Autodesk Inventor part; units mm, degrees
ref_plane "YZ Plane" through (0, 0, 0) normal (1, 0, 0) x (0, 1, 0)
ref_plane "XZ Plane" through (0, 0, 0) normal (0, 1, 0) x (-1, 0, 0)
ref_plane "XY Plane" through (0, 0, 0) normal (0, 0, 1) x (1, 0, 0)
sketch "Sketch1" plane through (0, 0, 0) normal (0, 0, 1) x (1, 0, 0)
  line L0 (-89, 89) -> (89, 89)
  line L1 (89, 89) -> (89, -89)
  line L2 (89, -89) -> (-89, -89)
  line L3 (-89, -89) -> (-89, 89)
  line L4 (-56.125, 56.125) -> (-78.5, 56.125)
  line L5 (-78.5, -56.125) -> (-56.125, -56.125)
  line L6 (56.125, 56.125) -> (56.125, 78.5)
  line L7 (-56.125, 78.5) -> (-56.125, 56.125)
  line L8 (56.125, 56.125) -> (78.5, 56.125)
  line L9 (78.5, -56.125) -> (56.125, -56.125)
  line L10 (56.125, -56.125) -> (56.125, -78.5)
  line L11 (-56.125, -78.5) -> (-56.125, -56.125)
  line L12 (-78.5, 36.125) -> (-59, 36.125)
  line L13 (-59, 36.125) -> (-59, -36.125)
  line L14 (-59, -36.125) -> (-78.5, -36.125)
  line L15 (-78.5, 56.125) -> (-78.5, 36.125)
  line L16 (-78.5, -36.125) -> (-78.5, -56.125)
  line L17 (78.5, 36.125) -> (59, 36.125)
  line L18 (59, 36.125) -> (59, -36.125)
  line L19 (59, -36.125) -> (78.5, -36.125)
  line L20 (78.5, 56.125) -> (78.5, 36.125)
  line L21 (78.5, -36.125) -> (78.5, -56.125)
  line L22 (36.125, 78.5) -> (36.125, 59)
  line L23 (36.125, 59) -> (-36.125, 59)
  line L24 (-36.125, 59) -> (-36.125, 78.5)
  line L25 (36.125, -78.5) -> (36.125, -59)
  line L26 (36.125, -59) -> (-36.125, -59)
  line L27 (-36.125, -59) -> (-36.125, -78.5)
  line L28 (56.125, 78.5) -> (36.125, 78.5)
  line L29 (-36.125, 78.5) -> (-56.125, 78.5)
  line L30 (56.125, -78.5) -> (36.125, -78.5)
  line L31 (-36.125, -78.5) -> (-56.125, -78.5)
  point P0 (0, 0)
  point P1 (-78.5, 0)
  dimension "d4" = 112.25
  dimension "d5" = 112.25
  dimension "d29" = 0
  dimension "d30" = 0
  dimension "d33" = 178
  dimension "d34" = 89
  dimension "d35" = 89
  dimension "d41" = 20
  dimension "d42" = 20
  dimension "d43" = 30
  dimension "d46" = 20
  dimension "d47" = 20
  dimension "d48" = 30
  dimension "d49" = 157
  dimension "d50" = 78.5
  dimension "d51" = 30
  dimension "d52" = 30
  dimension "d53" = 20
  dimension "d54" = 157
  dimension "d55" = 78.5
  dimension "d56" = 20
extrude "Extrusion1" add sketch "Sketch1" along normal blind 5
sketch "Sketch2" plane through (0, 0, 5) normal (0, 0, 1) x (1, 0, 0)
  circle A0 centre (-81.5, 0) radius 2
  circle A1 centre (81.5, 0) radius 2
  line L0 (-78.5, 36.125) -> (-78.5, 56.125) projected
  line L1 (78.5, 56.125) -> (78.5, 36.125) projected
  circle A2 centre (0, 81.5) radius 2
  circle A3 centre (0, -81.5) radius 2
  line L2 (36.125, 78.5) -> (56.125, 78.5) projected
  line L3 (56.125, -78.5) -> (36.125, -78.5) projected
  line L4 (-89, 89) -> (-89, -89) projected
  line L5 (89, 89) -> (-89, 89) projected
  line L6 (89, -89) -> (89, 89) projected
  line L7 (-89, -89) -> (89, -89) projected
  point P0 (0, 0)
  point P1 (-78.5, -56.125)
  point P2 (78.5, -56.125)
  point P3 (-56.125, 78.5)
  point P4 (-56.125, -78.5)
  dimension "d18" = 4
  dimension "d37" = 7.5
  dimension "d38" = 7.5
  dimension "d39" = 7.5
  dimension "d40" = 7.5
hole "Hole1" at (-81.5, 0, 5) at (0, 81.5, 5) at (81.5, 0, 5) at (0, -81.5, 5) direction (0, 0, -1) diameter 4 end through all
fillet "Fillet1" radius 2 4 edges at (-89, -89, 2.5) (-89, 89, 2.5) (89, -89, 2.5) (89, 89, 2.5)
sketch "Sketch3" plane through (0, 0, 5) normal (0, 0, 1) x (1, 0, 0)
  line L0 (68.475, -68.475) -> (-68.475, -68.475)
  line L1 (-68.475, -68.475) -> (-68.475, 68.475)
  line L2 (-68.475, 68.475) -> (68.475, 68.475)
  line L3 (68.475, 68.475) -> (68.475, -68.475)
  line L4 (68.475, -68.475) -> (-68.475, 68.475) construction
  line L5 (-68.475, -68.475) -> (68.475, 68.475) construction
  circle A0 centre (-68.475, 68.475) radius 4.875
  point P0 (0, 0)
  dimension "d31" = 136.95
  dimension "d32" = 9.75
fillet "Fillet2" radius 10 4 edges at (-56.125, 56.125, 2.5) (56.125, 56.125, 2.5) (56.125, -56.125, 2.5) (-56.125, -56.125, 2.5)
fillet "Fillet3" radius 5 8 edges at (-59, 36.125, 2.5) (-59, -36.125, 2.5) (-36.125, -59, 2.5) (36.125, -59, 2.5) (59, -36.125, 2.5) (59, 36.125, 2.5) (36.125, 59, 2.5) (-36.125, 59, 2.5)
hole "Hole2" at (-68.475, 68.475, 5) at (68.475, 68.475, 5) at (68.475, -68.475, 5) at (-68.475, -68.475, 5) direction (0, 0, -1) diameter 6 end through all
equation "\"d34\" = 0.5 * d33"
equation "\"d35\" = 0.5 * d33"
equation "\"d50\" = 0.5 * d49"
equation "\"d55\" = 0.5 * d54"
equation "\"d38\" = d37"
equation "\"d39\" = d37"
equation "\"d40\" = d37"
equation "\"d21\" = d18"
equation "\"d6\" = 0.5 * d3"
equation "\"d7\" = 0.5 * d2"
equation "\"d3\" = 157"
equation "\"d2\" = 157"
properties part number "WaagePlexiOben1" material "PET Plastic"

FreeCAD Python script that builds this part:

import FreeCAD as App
import Part
import Sketcher
from FreeCAD import Vector
Q = App.Units.Quantity


def edges_at(feature, points):
    """Names of the edges that pass closest to the given points."""
    edges = feature.Shape.Edges
    near = lambda p: min(range(len(edges)), key=lambda i: edges[i].distToShape(Part.Vertex(*p))[0])
    return sorted({f"Edge{near(p) + 1}" for p in points})

doc = App.newDocument("Part")
body = doc.addObject("PartDesign::Body", "Body")

# Sketch on XY plane
sketch1 = doc.addObject("Sketcher::SketchObject", "Sketch")
body.addObject(sketch1)
sketch1.AttachmentSupport = (doc.XY_Plane, [""])
sketch1.MapMode = "FlatFace"
sketch1.addGeometry(Part.LineSegment(Vector(89, 89, 0), Vector(-89, 89, 0)), False)
sketch1.addGeometry(Part.LineSegment(Vector(-89, 89, 0), Vector(-89, -89, 0)), False)
sketch1.addGeometry(Part.LineSegment(Vector(-89, -89, 0), Vector(89, -89, 0)), False)
sketch1.addGeometry(Part.LineSegment(Vector(89, -89, 0), Vector(89, 89, 0)), False)
sketch1.addGeometry(Part.LineSegment(Vector(-78, 56, 0), Vector(-56, 56, 0)), False)
sketch1.addGeometry(Part.LineSegment(Vector(-56, 56, 0), Vector(-56, 78, 0)), False)
sketch1.addGeometry(Part.LineSegment(Vector(-56, 78, 0), Vector(-36, 78, 0)), False)
sketch1.addGeometry(Part.LineSegment(Vector(-36, 78, 0), Vector(-36, 59, 0)), False)
sketch1.addGeometry(Part.LineSegment(Vector(-36, 59, 0), Vector(36, 59, 0)), False)
sketch1.addGeometry(Part.LineSegment(Vector(36, 59, 0), Vector(36, 78, 0)), False)
sketch1.addGeometry(Part.LineSegment(Vector(36, 78, 0), Vector(56, 78, 0)), False)
sketch1.addGeometry(Part.LineSegment(Vector(56, 78, 0), Vector(56, 56, 0)), False)
sketch1.addGeometry(Part.LineSegment(Vector(56, 56, 0), Vector(78, 56, 0)), False)
sketch1.addGeometry(Part.LineSegment(Vector(78, 56, 0), Vector(78, 36, 0)), False)
sketch1.addGeometry(Part.LineSegment(Vector(78, 36, 0), Vector(59, 36, 0)), False)
sketch1.addGeometry(Part.LineSegment(Vector(59, 36, 0), Vector(59, -36, 0)), False)
sketch1.addGeometry(Part.LineSegment(Vector(59, -36, 0), Vector(78, -36, 0)), False)
sketch1.addGeometry(Part.LineSegment(Vector(78, -36, 0), Vector(78, -56, 0)), False)
sketch1.addGeometry(Part.LineSegment(Vector(78, -56, 0), Vector(56, -56, 0)), False)
sketch1.addGeometry(Part.LineSegment(Vector(56, -56, 0), Vector(56, -78, 0)), False)
sketch1.addGeometry(Part.LineSegment(Vector(56, -78, 0), Vector(36, -78, 0)), False)
sketch1.addGeometry(Part.LineSegment(Vector(36, -78, 0), Vector(36, -59, 0)), False)
sketch1.addGeometry(Part.LineSegment(Vector(36, -59, 0), Vector(-36, -59, 0)), False)
sketch1.addGeometry(Part.LineSegment(Vector(-36, -59, 0), Vector(-36, -78, 0)), False)
sketch1.addGeometry(Part.LineSegment(Vector(-36, -78, 0), Vector(-56, -78, 0)), False)
sketch1.addGeometry(Part.LineSegment(Vector(-56, -78, 0), Vector(-56, -56, 0)), False)
sketch1.addGeometry(Part.LineSegment(Vector(-56, -56, 0), Vector(-78, -56, 0)), False)
sketch1.addGeometry(Part.LineSegment(Vector(-78, -56, 0), Vector(-78, -36, 0)), False)
sketch1.addGeometry(Part.LineSegment(Vector(-78, -36, 0), Vector(-59, -36, 0)), False)
sketch1.addGeometry(Part.LineSegment(Vector(-59, -36, 0), Vector(-59, 36, 0)), False)
sketch1.addGeometry(Part.LineSegment(Vector(-59, 36, 0), Vector(-78, 36, 0)), False)
sketch1.addGeometry(Part.LineSegment(Vector(-78, 36, 0), Vector(-78, 56, 0)), False)
sketch1.addConstraint(Sketcher.Constraint("Coincident", 0, 2, 1, 1))
sketch1.addConstraint(Sketcher.Constraint("Coincident", 1, 2, 2, 1))
sketch1.addConstraint(Sketcher.Constraint("Coincident", 2, 2, 3, 1))
sketch1.addConstraint(Sketcher.Constraint("Coincident", 3, 2, 0, 1))
sketch1.addConstraint(Sketcher.Constraint("Coincident", 4, 2, 5, 1))
sketch1.addConstraint(Sketcher.Constraint("Coincident", 5, 2, 6, 1))
sketch1.addConstraint(Sketcher.Constraint("Coincident", 6, 2, 7, 1))
sketch1.addConstraint(Sketcher.Constraint("Coincident", 7, 2, 8, 1))
sketch1.addConstraint(Sketcher.Constraint("Coincident", 8, 2, 9, 1))
sketch1.addConstraint(Sketcher.Constraint("Coincident", 9, 2, 10, 1))
sketch1.addConstraint(Sketcher.Constraint("Coincident", 10, 2, 11, 1))
sketch1.addConstraint(Sketcher.Constraint("Coincident", 11, 2, 12, 1))
sketch1.addConstraint(Sketcher.Constraint("Coincident", 12, 2, 13, 1))
sketch1.addConstraint(Sketcher.Constraint("Coincident", 13, 2, 14, 1))
sketch1.addConstraint(Sketcher.Constraint("Coincident", 14, 2, 15, 1))
sketch1.addConstraint(Sketcher.Constraint("Coincident", 15, 2, 16, 1))
sketch1.addConstraint(Sketcher.Constraint("Coincident", 16, 2, 17, 1))
sketch1.addConstraint(Sketcher.Constraint("Coincident", 17, 2, 18, 1))
sketch1.addConstraint(Sketcher.Constraint("Coincident", 18, 2, 19, 1))
sketch1.addConstraint(Sketcher.Constraint("Coincident", 19, 2, 20, 1))
sketch1.addConstraint(Sketcher.Constraint("Coincident", 20, 2, 21, 1))
sketch1.addConstraint(Sketcher.Constraint("Coincident", 21, 2, 22, 1))
sketch1.addConstraint(Sketcher.Constraint("Coincident", 22, 2, 23, 1))
sketch1.addConstraint(Sketcher.Constraint("Coincident", 23, 2, 24, 1))
sketch1.addConstraint(Sketcher.Constraint("Coincident", 24, 2, 25, 1))
sketch1.addConstraint(Sketcher.Constraint("Coincident", 25, 2, 26, 1))
sketch1.addConstraint(Sketcher.Constraint("Coincident", 26, 2, 27, 1))
sketch1.addConstraint(Sketcher.Constraint("Coincident", 27, 2, 28, 1))
sketch1.addConstraint(Sketcher.Constraint("Coincident", 28, 2, 29, 1))
sketch1.addConstraint(Sketcher.Constraint("Coincident", 29, 2, 30, 1))
sketch1.addConstraint(Sketcher.Constraint("Coincident", 30, 2, 31, 1))
sketch1.addConstraint(Sketcher.Constraint("Coincident", 31, 2, 4, 1))
sketch1.addConstraint(Sketcher.Constraint("Horizontal", 0))
sketch1.addConstraint(Sketcher.Constraint("Vertical", 1))
sketch1.addConstraint(Sketcher.Constraint("Horizontal", 2))
sketch1.addConstraint(Sketcher.Constraint("Vertical", 3))
sketch1.addConstraint(Sketcher.Constraint("Horizontal", 4))
sketch1.addConstraint(Sketcher.Constraint("Vertical", 5))
sketch1.addConstraint(Sketcher.Constraint("Horizontal", 6))
sketch1.addConstraint(Sketcher.Constraint("Vertical", 7))
sketch1.addConstraint(Sketcher.Constraint("Horizontal", 8))
sketch1.addConstraint(Sketcher.Constraint("Vertical", 9))
sketch1.addConstraint(Sketcher.Constraint("Horizontal", 10))
sketch1.addConstraint(Sketcher.Constraint("Vertical", 11))
sketch1.addConstraint(Sketcher.Constraint("Horizontal", 12))
sketch1.addConstraint(Sketcher.Constraint("Vertical", 13))
sketch1.addConstraint(Sketcher.Constraint("Horizontal", 14))
sketch1.addConstraint(Sketcher.Constraint("Vertical", 15))
sketch1.addConstraint(Sketcher.Constraint("Horizontal", 16))
sketch1.addConstraint(Sketcher.Constraint("Vertical", 17))
sketch1.addConstraint(Sketcher.Constraint("Horizontal", 18))
sketch1.addConstraint(Sketcher.Constraint("Vertical", 19))
sketch1.addConstraint(Sketcher.Constraint("Horizontal", 20))
sketch1.addConstraint(Sketcher.Constraint("Vertical", 21))
sketch1.addConstraint(Sketcher.Constraint("Horizontal", 22))
sketch1.addConstraint(Sketcher.Constraint("Vertical", 23))
sketch1.addConstraint(Sketcher.Constraint("Horizontal", 24))
sketch1.addConstraint(Sketcher.Constraint("Vertical", 25))
sketch1.addConstraint(Sketcher.Constraint("Horizontal", 26))
sketch1.addConstraint(Sketcher.Constraint("Vertical", 27))
sketch1.addConstraint(Sketcher.Constraint("Horizontal", 28))
sketch1.addConstraint(Sketcher.Constraint("Vertical", 29))
sketch1.addConstraint(Sketcher.Constraint("Horizontal", 30))
sketch1.addConstraint(Sketcher.Constraint("Vertical", 31))
sketch1.addConstraint(Sketcher.Constraint("Symmetric", 0, 2, 2, 2, -1, 1))
sketch1.addConstraint(Sketcher.Constraint("Symmetric", 4, 2, 18, 2, -1, 1))
sketch1.addConstraint(Sketcher.Constraint("Symmetric", 6, 2, 20, 2, -1, 1))
sketch1.addConstraint(Sketcher.Constraint("Symmetric", 8, 2, 22, 2, -1, 1))
sketch1.addConstraint(Sketcher.Constraint("Symmetric", 10, 2, 24, 2, -1, 1))
sketch1.addConstraint(Sketcher.Constraint("Symmetric", 12, 2, 26, 2, -1, 1))
sketch1.addConstraint(Sketcher.Constraint("Symmetric", 14, 2, 28, 2, -1, 1))
sketch1.addConstraint(Sketcher.Constraint("Symmetric", 16, 2, 30, 2, -1, 1))
sketch1.addConstraint(Sketcher.Constraint("Symmetric", 6, 2, 9, 2, -2))
sketch1.addConstraint(Sketcher.Constraint("Symmetric", 4, 2, 11, 2, -2))
sketch1.addConstraint(Sketcher.Constraint("Symmetric", 16, 2, 27, 2, -2))
sketch1.addConstraint(Sketcher.Constraint("Equal", 2, 1))
sketch1.addConstraint(Sketcher.Constraint("Equal", 26, 5))
sketch1.addConstraint(Sketcher.Constraint("Equal", 30, 7))
sketch1.addConstraint(Sketcher.Constraint("Equal", 24, 13))
sketch1.addConstraint(Sketcher.Constraint("Equal", 22, 15))
sketch1.addConstraint(Sketcher.Constraint("DistanceX", 0, 2, 0, 1, Q("178 mm")))
sketch1.addConstraint(Sketcher.Constraint("DistanceX", 6, 1, 6, 2, Q("20 mm")))
sketch1.addConstraint(Sketcher.Constraint("DistanceY", 7, 2, 0, 2, Q("30 mm")))
sketch1.addConstraint(Sketcher.Constraint("DistanceY", -1, 1, 5, 2, Q("78.5 mm")))
sketch1.addConstraint(Sketcher.Constraint("DistanceX", 8, 1, 8, 2, Q("72.25 mm")))
pad1 = doc.addObject("PartDesign::Pad", "Pad")
body.addObject(pad1)
pad1.Profile = sketch1
pad1.Length = 5

# Sketch on XY plane
sketch2 = doc.addObject("Sketcher::SketchObject", "Sketch001")
body.addObject(sketch2)
sketch2.AttachmentSupport = (doc.XY_Plane, [""])
sketch2.MapMode = "FlatFace"
sketch2.AttachmentOffset = App.Placement(Vector(0, 0, 5), App.Rotation())
sketch2.addGeometry(Part.Circle(Vector(-81.5, 0, 0), Vector(0, 0, 1), 2), False)
sketch2.addGeometry(Part.Circle(Vector(0, 81.5, 0), Vector(0, 0, 1), 2), False)
sketch2.addGeometry(Part.Circle(Vector(81.5, 0, 0), Vector(0, 0, 1), 2), False)
sketch2.addGeometry(Part.Circle(Vector(0, -81.5, 0), Vector(0, 0, 1), 2), False)
sketch2.addConstraint(Sketcher.Constraint("Equal", 0, 1))
sketch2.addConstraint(Sketcher.Constraint("Equal", 1, 2))
sketch2.addConstraint(Sketcher.Constraint("Equal", 2, 3))
sketch2.addConstraint(Sketcher.Constraint("Symmetric", 0, 3, 2, 3, -1, 1))
sketch2.addConstraint(Sketcher.Constraint("Symmetric", 1, 3, 3, 3, -1, 1))
sketch2.addConstraint(Sketcher.Constraint("PointOnObject", 0, 3, -1))
sketch2.addConstraint(Sketcher.Constraint("PointOnObject", 1, 3, -2))
sketch2.addConstraint(Sketcher.Constraint("Diameter", 0, Q("4 mm")))
sketch2.addConstraint(Sketcher.Constraint("DistanceX", 0, 3, 2, 3, Q("163 mm")))
sketch2.addConstraint(Sketcher.Constraint("DistanceY", 3, 3, 1, 3, Q("163 mm")))
doc.recompute()
hole = doc.addObject("PartDesign::Hole", "Hole")
body.addObject(hole)
hole.Profile = sketch2
hole.ThreadType = "None"
hole.Diameter = 4
hole.DepthType = "ThroughAll"
doc.recompute()

fillet = doc.addObject("PartDesign::Fillet", "Fillet")
body.addObject(fillet)
fillet.Base = (hole, edges_at(hole, [
    (-89, -89, 2.5),
    (-89, 89, 2.5),
    (89, -89, 2.5),
    (89, 89, 2.5),
]))
fillet.Radius = 2
doc.recompute()

fillet2 = doc.addObject("PartDesign::Fillet", "Fillet001")
body.addObject(fillet2)
fillet2.Base = (fillet, edges_at(fillet, [
    (-56.125, 56.125, 2.5),
    (56.125, 56.125, 2.5),
    (56.125, -56.125, 2.5),
    (-56.125, -56.125, 2.5),
]))
fillet2.Radius = 10
doc.recompute()

fillet3 = doc.addObject("PartDesign::Fillet", "Fillet002")
body.addObject(fillet3)
fillet3.Base = (fillet2, edges_at(fillet2, [
    (-59, 36.125, 2.5),
    (-59, -36.125, 2.5),
    (-36.125, -59, 2.5),
    (36.125, -59, 2.5),
    (59, -36.125, 2.5),
    (59, 36.125, 2.5),
    (36.125, 59, 2.5),
    (-36.125, 59, 2.5),
]))
fillet3.Radius = 5

# Sketch on XY plane
sketch3 = doc.addObject("Sketcher::SketchObject", "Sketch002")
body.addObject(sketch3)
sketch3.AttachmentSupport = (doc.XY_Plane, [""])
sketch3.MapMode = "FlatFace"
sketch3.AttachmentOffset = App.Placement(Vector(0, 0, 5), App.Rotation())
sketch3.addGeometry(Part.Circle(Vector(-68.5, 68.5, 0), Vector(0, 0, 1), 3), False)
sketch3.addGeometry(Part.Circle(Vector(68.5, 68.5, 0), Vector(0, 0, 1), 3), False)
sketch3.addGeometry(Part.Circle(Vector(68.5, -68.5, 0), Vector(0, 0, 1), 3), False)
sketch3.addGeometry(Part.Circle(Vector(-68.5, -68.5, 0), Vector(0, 0, 1), 3), False)
sketch3.addConstraint(Sketcher.Constraint("Equal", 0, 1))
sketch3.addConstraint(Sketcher.Constraint("Equal", 1, 2))
sketch3.addConstraint(Sketcher.Constraint("Equal", 2, 3))
sketch3.addConstraint(Sketcher.Constraint("Symmetric", 0, 3, 2, 3, -1, 1))
sketch3.addConstraint(Sketcher.Constraint("Symmetric", 1, 3, 3, 3, -1, 1))
sketch3.addConstraint(Sketcher.Constraint("Symmetric", 0, 3, 1, 3, -2))
sketch3.addConstraint(Sketcher.Constraint("Diameter", 0, Q("6 mm")))
sketch3.addConstraint(Sketcher.Constraint("DistanceX", 0, 3, 1, 3, Q("136.95 mm")))
sketch3.addConstraint(Sketcher.Constraint("DistanceY", 2, 3, 1, 3, Q("136.95 mm")))
doc.recompute()
hole2 = doc.addObject("PartDesign::Hole", "Hole001")
body.addObject(hole2)
hole2.Profile = sketch3
hole2.ThreadType = "None"
hole2.Diameter = 6
hole2.DepthType = "ThroughAll"

doc.recompute()
